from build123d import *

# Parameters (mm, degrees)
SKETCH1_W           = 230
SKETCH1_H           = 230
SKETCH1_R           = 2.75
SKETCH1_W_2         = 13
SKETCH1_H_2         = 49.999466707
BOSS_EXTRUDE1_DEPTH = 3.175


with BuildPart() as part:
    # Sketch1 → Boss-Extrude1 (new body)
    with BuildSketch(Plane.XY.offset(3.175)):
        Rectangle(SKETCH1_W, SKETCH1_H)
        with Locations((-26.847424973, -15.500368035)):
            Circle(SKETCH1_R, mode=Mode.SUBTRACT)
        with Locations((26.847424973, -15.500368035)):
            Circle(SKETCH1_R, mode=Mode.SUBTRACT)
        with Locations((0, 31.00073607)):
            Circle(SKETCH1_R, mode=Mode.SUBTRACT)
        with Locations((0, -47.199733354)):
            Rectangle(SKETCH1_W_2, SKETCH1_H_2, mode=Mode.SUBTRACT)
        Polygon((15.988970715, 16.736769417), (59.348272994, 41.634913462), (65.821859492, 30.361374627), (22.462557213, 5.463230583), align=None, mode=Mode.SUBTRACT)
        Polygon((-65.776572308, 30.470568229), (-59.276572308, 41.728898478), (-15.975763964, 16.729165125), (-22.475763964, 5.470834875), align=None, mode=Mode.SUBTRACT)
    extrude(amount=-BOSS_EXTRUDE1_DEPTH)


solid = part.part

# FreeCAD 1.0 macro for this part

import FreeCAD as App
import Part
import Sketcher

V = App.Vector
Q = App.Units.Quantity


def add_polygon(sketch, points):
    """Adds a closed chain of lines whose ends are joined by coincident constraints."""
    first, n = sketch.GeometryCount, len(points)
    for a, b in zip(points, points[1:] + points[:1]):
        sketch.addGeometry(Part.LineSegment(App.Vector(*a, 0), App.Vector(*b, 0)), False)
    for i in range(n):
        sketch.addConstraint(Sketcher.Constraint("Coincident", first + i, 2, first + (i + 1) % n, 1))

doc = App.newDocument("Part")
body = doc.addObject("PartDesign::Body", "Body")

# Sketch on XY plane
sketch1 = body.newObject("Sketcher::SketchObject", "Sketch")
sketch1.AttachmentSupport = (doc.getObject("XY_Plane"), [""])
sketch1.MapMode = "FlatFace"
sketch1.AttachmentOffset = App.Placement(V(0, 0, 3.175), App.Rotation())
add_polygon(sketch1, [(-115, 115), (-115, -115), (115, -115), (115, 115)])  # lines 0-3
add_polygon(sketch1, [(6.5, -72.2), (-6.5, -72.2), (-6.5, -22.2), (6.5, -22.2)])  # lines 4-7
sketch1.addGeometry(Part.Circle(V(-26.8, -15.5, 0), V(0, 0, 1), 2.8), False)  # 8
sketch1.addGeometry(Part.Circle(V(26.8, -15.5, 0), V(0, 0, 1), 2.8), False)  # 9
add_polygon(sketch1, [(-22.5, 5.5), (-65.8, 30.5), (-59.3, 41.7), (-16, 16.7)])  # lines 10-13
sketch1.addGeometry(Part.Circle(V(0, 31, 0), V(0, 0, 1), 2.8), False)  # 14
add_polygon(sketch1, [(22.5, 5.5), (16, 16.7), (59.3, 41.6), (65.8, 30.4)])  # lines 15-18
sketch1.addConstraint(Sketcher.Constraint("Vertical", 0))
sketch1.addConstraint(Sketcher.Constraint("Horizontal", 1))
sketch1.addConstraint(Sketcher.Constraint("Vertical", 2))
sketch1.addConstraint(Sketcher.Constraint("Horizontal", 3))
sketch1.addConstraint(Sketcher.Constraint("Horizontal", 4))
sketch1.addConstraint(Sketcher.Constraint("Vertical", 5))
sketch1.addConstraint(Sketcher.Constraint("Horizontal", 6))
sketch1.addConstraint(Sketcher.Constraint("Vertical", 7))
sketch1.addConstraint(Sketcher.Constraint("Equal", 8, 9))
sketch1.addConstraint(Sketcher.Constraint("Equal", 9, 14))
sketch1.addConstraint(Sketcher.Constraint("Symmetric", 0, 2, 2, 2, -1, 1))
sketch1.addConstraint(Sketcher.Constraint("Symmetric", 8, 3, 9, 3, -2))
sketch1.addConstraint(Sketcher.Constraint("PointOnObject", 14, 3, -2))
sketch1.addConstraint(Sketcher.Constraint("Perpendicular", 10, 11))
sketch1.addConstraint(Sketcher.Constraint("Perpendicular", 11, 12))
sketch1.addConstraint(Sketcher.Constraint("Perpendicular", 12, 13))
sketch1.addConstraint(Sketcher.Constraint("Perpendicular", 15, 16))
sketch1.addConstraint(Sketcher.Constraint("Perpendicular", 16, 17))
sketch1.addConstraint(Sketcher.Constraint("Perpendicular", 17, 18))
sketch1.addConstraint(Sketcher.Constraint("Equal", 3, 0))
sketch1.addConstraint(Sketcher.Constraint("Equal", 13, 15))
sketch1.addConstraint(Sketcher.Constraint("Equal", 12, 16))
sketch1.addConstraint(Sketcher.Constraint("Diameter", 8, 5.5))
sketch1.addConstraint(Sketcher.Constraint("DistanceX", 1, 1, 1, 2, 230.0))
sketch1.addConstraint(Sketcher.Constraint("DistanceX", 4, 2, 4, 1, 13.0))
sketch1.addConstraint(Sketcher.Constraint("Angle", 10, Q("150 deg")))
sketch1.addConstraint(Sketcher.Constraint("Distance", 11, 13.0))
sketch1.addConstraint(Sketcher.Constraint("DistanceX", 4, 2, -1, 1, 6.5))
sketch1.addConstraint(Sketcher.Constraint("DistanceY", 5, 2, -1, 1, 22.2))
sketch1.addConstraint(Sketcher.Constraint("DistanceY", -1, 1, 11, 2, 41.728898))
sketch1.addConstraint(Sketcher.Constraint("DistanceY", 4, 2, 8, 3, 56.699099))
sketch1.addConstraint(Sketcher.Constraint("DistanceY", 13, 2, 14, 3, 25.529901))
sketch1.addConstraint(Sketcher.Constraint("DistanceY", 9, 3, 18, 2, 20.963599))
sketch1.addConstraint(Sketcher.Constraint("DistanceY", 5, 1, 5, 2, 49.999467))
sketch1.addConstraint(Sketcher.Constraint("DistanceX", -1, 1, 15, 2, 15.988971))
sketch1.addConstraint(Sketcher.Constraint("DistanceY", -1, 1, 15, 2, 16.736769))
sketch1.addConstraint(Sketcher.Constraint("DistanceX", -1, 1, 17, 2, 65.821859))
sketch1.addConstraint(Sketcher.Constraint("DistanceX", 8, 3, 9, 3, 53.69485))
sketch1.addConstraint(Sketcher.Constraint("DistanceX", 8, 3, 12, 2, 10.871661))
pad1 = body.newObject("PartDesign::Pad", "Pad")
pad1.Profile = sketch1
pad1.Length = 3.175
pad1.Reversed = True

doc.recompute()
